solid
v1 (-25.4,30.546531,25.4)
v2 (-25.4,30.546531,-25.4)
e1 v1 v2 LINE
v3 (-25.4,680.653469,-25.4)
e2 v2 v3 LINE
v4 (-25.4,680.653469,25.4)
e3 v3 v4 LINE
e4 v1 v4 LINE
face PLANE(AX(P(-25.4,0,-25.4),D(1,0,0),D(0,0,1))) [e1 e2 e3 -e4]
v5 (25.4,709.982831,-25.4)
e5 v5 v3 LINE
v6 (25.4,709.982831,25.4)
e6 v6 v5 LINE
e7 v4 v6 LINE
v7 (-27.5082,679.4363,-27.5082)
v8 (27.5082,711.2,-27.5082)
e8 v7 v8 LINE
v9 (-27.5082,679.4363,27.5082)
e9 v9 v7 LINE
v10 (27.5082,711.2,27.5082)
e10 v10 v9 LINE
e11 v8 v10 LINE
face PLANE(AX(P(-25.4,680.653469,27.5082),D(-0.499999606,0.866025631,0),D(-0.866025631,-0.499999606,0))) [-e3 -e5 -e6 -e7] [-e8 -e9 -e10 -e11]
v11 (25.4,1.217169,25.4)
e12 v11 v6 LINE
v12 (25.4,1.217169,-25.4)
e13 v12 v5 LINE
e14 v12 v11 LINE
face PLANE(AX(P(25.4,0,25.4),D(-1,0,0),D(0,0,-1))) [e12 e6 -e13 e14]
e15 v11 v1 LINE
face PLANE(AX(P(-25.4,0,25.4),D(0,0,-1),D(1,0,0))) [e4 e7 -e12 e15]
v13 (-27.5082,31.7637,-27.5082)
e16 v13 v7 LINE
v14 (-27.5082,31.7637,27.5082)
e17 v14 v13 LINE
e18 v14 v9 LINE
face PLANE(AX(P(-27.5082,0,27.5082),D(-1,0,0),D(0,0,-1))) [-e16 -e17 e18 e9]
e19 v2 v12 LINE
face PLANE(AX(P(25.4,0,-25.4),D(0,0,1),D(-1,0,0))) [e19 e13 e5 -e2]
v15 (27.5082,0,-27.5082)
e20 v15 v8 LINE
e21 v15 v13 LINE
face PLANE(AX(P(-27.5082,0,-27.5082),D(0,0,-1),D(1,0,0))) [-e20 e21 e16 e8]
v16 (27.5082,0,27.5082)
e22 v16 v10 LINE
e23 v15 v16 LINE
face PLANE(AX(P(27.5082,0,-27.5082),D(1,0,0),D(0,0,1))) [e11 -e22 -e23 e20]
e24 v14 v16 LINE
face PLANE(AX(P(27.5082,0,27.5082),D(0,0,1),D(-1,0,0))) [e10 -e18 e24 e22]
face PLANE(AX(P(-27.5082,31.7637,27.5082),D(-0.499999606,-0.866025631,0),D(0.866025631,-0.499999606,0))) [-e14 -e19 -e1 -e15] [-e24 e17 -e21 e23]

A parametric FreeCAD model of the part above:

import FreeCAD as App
import Part
import Sketcher

V = App.Vector
Q = App.Units.Quantity

doc = App.newDocument("Part")
body = doc.addObject("PartDesign::Body", "Body")

# Sketch on XZ plane
sketch1 = body.newObject("Sketcher::SketchObject", "Sketch")
sketch1.AttachmentSupport = (doc.getObject("XZ_Plane"), [""])
sketch1.MapMode = "FlatFace"
sketch1.addGeometry([
    Part.LineSegment(V(-27.5082, 27.5082, 0), V(27.5082, 27.5082, 0)),  # 0
    Part.LineSegment(V(27.5082, 27.5082, 0), V(27.5082, -27.5082, 0)),  # 1
    Part.LineSegment(V(27.5082, -27.5082, 0), V(-27.5082, -27.5082, 0)),  # 2
    Part.LineSegment(V(-27.5082, -27.5082, 0), V(-27.5082, 27.5082, 0)),  # 3
    Part.LineSegment(V(25.4, 25.4, 0), V(-25.4, 25.4, 0)),  # 4
    Part.LineSegment(V(-25.4, 25.4, 0), V(-25.4, -25.4, 0)),  # 5
    Part.LineSegment(V(-25.4, -25.4, 0), V(25.4, -25.4, 0)),  # 6
    Part.LineSegment(V(25.4, -25.4, 0), V(25.4, 25.4, 0)),  # 7
], False)
sketch1.addConstraint([
    Sketcher.Constraint("Coincident", 0, 2, 1, 1),
    Sketcher.Constraint("Coincident", 1, 2, 2, 1),
    Sketcher.Constraint("Coincident", 2, 2, 3, 1),
    Sketcher.Constraint("Coincident", 3, 2, 0, 1),
    Sketcher.Constraint("Coincident", 4, 2, 5, 1),
    Sketcher.Constraint("Coincident", 5, 2, 6, 1),
    Sketcher.Constraint("Coincident", 6, 2, 7, 1),
    Sketcher.Constraint("Coincident", 7, 2, 4, 1),
    Sketcher.Constraint("Horizontal", 0),
    Sketcher.Constraint("Vertical", 1),
    Sketcher.Constraint("Horizontal", 2),
    Sketcher.Constraint("Vertical", 3),
    Sketcher.Constraint("Horizontal", 4),
    Sketcher.Constraint("Vertical", 5),
    Sketcher.Constraint("Horizontal", 6),
    Sketcher.Constraint("Vertical", 7),
    Sketcher.Constraint("Symmetric", 0, 2, 2, 2, -1, 1),
    Sketcher.Constraint("Symmetric", 4, 2, 6, 2, -1, 1),
    Sketcher.Constraint("Equal", 2, 1),
    Sketcher.Constraint("Equal", 6, 5),
    Sketcher.Constraint("DistanceX", 4, 2, 4, 1, Q("2 in")),
    Sketcher.Constraint("DistanceX", 3, 2, 4, 2, Q("0.083 in")),
])
pad1 = body.newObject("PartDesign::Pad", "Pad")
pad1.Profile = sketch1
pad1.Length = Q("28 in")
pad1.Reversed = True

# Sketch on XY plane
sketch2 = body.newObject("Sketcher::SketchObject", "Sketch001")
sketch2.AttachmentSupport = (doc.getObject("XY_Plane"), [""])
sketch2.MapMode = "FlatFace"
sketch2.AttachmentOffset = App.Placement(V(0, 0, 1.083 * 25.4), App.Rotation())
sketch2.addGeometry([
    Part.LineSegment(V(-27.5082, 31.7637, 0), V(-27.5082, 0, 0)),  # 0
    Part.LineSegment(V(-27.5082, 0, 0), V(27.5082, 0, 0)),  # 1
    Part.LineSegment(V(27.5082, 0, 0), V(-27.5082, 31.7637, 0)),  # 2
    Part.LineSegment(V(-27.5082, 711.2, 0), V(-27.5082, 679.4363, 0)),  # 3
    Part.LineSegment(V(-27.5082, 679.4363, 0), V(27.5082, 711.2, 0)),  # 4
    Part.LineSegment(V(27.5082, 711.2, 0), V(-27.5082, 711.2, 0)),  # 5
], False)
sketch2.addConstraint([
    Sketcher.Constraint("Coincident", 0, 2, 1, 1),
    Sketcher.Constraint("Coincident", 1, 2, 2, 1),
    Sketcher.Constraint("Coincident", 2, 2, 0, 1),
    Sketcher.Constraint("Coincident", 3, 2, 4, 1),
    Sketcher.Constraint("Coincident", 4, 2, 5, 1),
    Sketcher.Constraint("Coincident", 5, 2, 3, 1),
    Sketcher.Constraint("Vertical", 0),
    Sketcher.Constraint("Horizontal", 1),
    Sketcher.Constraint("Vertical", 3),
    Sketcher.Constraint("Horizontal", 5),
    Sketcher.Constraint("Symmetric", 0, 2, 1, 2, -1, 1),
    Sketcher.Constraint("Vertical", 2, 2, 3, 2),
    Sketcher.Constraint("Vertical", 1, 2, 4, 2),
    Sketcher.Constraint("Equal", 0, 3),
    Sketcher.Constraint("Angle", 4, Q("30 deg")),
    Sketcher.Constraint("DistanceY", -1, 1, 4, 2, Q("28 in")),
    Sketcher.Constraint("DistanceX", 1, 1, 1, 2, Q("2.166 in")),
])
pocket1 = body.newObject("PartDesign::Pocket", "Pocket")
pocket1.Profile = sketch2
pocket1.Type = "ThroughAll"

doc.recompute()
